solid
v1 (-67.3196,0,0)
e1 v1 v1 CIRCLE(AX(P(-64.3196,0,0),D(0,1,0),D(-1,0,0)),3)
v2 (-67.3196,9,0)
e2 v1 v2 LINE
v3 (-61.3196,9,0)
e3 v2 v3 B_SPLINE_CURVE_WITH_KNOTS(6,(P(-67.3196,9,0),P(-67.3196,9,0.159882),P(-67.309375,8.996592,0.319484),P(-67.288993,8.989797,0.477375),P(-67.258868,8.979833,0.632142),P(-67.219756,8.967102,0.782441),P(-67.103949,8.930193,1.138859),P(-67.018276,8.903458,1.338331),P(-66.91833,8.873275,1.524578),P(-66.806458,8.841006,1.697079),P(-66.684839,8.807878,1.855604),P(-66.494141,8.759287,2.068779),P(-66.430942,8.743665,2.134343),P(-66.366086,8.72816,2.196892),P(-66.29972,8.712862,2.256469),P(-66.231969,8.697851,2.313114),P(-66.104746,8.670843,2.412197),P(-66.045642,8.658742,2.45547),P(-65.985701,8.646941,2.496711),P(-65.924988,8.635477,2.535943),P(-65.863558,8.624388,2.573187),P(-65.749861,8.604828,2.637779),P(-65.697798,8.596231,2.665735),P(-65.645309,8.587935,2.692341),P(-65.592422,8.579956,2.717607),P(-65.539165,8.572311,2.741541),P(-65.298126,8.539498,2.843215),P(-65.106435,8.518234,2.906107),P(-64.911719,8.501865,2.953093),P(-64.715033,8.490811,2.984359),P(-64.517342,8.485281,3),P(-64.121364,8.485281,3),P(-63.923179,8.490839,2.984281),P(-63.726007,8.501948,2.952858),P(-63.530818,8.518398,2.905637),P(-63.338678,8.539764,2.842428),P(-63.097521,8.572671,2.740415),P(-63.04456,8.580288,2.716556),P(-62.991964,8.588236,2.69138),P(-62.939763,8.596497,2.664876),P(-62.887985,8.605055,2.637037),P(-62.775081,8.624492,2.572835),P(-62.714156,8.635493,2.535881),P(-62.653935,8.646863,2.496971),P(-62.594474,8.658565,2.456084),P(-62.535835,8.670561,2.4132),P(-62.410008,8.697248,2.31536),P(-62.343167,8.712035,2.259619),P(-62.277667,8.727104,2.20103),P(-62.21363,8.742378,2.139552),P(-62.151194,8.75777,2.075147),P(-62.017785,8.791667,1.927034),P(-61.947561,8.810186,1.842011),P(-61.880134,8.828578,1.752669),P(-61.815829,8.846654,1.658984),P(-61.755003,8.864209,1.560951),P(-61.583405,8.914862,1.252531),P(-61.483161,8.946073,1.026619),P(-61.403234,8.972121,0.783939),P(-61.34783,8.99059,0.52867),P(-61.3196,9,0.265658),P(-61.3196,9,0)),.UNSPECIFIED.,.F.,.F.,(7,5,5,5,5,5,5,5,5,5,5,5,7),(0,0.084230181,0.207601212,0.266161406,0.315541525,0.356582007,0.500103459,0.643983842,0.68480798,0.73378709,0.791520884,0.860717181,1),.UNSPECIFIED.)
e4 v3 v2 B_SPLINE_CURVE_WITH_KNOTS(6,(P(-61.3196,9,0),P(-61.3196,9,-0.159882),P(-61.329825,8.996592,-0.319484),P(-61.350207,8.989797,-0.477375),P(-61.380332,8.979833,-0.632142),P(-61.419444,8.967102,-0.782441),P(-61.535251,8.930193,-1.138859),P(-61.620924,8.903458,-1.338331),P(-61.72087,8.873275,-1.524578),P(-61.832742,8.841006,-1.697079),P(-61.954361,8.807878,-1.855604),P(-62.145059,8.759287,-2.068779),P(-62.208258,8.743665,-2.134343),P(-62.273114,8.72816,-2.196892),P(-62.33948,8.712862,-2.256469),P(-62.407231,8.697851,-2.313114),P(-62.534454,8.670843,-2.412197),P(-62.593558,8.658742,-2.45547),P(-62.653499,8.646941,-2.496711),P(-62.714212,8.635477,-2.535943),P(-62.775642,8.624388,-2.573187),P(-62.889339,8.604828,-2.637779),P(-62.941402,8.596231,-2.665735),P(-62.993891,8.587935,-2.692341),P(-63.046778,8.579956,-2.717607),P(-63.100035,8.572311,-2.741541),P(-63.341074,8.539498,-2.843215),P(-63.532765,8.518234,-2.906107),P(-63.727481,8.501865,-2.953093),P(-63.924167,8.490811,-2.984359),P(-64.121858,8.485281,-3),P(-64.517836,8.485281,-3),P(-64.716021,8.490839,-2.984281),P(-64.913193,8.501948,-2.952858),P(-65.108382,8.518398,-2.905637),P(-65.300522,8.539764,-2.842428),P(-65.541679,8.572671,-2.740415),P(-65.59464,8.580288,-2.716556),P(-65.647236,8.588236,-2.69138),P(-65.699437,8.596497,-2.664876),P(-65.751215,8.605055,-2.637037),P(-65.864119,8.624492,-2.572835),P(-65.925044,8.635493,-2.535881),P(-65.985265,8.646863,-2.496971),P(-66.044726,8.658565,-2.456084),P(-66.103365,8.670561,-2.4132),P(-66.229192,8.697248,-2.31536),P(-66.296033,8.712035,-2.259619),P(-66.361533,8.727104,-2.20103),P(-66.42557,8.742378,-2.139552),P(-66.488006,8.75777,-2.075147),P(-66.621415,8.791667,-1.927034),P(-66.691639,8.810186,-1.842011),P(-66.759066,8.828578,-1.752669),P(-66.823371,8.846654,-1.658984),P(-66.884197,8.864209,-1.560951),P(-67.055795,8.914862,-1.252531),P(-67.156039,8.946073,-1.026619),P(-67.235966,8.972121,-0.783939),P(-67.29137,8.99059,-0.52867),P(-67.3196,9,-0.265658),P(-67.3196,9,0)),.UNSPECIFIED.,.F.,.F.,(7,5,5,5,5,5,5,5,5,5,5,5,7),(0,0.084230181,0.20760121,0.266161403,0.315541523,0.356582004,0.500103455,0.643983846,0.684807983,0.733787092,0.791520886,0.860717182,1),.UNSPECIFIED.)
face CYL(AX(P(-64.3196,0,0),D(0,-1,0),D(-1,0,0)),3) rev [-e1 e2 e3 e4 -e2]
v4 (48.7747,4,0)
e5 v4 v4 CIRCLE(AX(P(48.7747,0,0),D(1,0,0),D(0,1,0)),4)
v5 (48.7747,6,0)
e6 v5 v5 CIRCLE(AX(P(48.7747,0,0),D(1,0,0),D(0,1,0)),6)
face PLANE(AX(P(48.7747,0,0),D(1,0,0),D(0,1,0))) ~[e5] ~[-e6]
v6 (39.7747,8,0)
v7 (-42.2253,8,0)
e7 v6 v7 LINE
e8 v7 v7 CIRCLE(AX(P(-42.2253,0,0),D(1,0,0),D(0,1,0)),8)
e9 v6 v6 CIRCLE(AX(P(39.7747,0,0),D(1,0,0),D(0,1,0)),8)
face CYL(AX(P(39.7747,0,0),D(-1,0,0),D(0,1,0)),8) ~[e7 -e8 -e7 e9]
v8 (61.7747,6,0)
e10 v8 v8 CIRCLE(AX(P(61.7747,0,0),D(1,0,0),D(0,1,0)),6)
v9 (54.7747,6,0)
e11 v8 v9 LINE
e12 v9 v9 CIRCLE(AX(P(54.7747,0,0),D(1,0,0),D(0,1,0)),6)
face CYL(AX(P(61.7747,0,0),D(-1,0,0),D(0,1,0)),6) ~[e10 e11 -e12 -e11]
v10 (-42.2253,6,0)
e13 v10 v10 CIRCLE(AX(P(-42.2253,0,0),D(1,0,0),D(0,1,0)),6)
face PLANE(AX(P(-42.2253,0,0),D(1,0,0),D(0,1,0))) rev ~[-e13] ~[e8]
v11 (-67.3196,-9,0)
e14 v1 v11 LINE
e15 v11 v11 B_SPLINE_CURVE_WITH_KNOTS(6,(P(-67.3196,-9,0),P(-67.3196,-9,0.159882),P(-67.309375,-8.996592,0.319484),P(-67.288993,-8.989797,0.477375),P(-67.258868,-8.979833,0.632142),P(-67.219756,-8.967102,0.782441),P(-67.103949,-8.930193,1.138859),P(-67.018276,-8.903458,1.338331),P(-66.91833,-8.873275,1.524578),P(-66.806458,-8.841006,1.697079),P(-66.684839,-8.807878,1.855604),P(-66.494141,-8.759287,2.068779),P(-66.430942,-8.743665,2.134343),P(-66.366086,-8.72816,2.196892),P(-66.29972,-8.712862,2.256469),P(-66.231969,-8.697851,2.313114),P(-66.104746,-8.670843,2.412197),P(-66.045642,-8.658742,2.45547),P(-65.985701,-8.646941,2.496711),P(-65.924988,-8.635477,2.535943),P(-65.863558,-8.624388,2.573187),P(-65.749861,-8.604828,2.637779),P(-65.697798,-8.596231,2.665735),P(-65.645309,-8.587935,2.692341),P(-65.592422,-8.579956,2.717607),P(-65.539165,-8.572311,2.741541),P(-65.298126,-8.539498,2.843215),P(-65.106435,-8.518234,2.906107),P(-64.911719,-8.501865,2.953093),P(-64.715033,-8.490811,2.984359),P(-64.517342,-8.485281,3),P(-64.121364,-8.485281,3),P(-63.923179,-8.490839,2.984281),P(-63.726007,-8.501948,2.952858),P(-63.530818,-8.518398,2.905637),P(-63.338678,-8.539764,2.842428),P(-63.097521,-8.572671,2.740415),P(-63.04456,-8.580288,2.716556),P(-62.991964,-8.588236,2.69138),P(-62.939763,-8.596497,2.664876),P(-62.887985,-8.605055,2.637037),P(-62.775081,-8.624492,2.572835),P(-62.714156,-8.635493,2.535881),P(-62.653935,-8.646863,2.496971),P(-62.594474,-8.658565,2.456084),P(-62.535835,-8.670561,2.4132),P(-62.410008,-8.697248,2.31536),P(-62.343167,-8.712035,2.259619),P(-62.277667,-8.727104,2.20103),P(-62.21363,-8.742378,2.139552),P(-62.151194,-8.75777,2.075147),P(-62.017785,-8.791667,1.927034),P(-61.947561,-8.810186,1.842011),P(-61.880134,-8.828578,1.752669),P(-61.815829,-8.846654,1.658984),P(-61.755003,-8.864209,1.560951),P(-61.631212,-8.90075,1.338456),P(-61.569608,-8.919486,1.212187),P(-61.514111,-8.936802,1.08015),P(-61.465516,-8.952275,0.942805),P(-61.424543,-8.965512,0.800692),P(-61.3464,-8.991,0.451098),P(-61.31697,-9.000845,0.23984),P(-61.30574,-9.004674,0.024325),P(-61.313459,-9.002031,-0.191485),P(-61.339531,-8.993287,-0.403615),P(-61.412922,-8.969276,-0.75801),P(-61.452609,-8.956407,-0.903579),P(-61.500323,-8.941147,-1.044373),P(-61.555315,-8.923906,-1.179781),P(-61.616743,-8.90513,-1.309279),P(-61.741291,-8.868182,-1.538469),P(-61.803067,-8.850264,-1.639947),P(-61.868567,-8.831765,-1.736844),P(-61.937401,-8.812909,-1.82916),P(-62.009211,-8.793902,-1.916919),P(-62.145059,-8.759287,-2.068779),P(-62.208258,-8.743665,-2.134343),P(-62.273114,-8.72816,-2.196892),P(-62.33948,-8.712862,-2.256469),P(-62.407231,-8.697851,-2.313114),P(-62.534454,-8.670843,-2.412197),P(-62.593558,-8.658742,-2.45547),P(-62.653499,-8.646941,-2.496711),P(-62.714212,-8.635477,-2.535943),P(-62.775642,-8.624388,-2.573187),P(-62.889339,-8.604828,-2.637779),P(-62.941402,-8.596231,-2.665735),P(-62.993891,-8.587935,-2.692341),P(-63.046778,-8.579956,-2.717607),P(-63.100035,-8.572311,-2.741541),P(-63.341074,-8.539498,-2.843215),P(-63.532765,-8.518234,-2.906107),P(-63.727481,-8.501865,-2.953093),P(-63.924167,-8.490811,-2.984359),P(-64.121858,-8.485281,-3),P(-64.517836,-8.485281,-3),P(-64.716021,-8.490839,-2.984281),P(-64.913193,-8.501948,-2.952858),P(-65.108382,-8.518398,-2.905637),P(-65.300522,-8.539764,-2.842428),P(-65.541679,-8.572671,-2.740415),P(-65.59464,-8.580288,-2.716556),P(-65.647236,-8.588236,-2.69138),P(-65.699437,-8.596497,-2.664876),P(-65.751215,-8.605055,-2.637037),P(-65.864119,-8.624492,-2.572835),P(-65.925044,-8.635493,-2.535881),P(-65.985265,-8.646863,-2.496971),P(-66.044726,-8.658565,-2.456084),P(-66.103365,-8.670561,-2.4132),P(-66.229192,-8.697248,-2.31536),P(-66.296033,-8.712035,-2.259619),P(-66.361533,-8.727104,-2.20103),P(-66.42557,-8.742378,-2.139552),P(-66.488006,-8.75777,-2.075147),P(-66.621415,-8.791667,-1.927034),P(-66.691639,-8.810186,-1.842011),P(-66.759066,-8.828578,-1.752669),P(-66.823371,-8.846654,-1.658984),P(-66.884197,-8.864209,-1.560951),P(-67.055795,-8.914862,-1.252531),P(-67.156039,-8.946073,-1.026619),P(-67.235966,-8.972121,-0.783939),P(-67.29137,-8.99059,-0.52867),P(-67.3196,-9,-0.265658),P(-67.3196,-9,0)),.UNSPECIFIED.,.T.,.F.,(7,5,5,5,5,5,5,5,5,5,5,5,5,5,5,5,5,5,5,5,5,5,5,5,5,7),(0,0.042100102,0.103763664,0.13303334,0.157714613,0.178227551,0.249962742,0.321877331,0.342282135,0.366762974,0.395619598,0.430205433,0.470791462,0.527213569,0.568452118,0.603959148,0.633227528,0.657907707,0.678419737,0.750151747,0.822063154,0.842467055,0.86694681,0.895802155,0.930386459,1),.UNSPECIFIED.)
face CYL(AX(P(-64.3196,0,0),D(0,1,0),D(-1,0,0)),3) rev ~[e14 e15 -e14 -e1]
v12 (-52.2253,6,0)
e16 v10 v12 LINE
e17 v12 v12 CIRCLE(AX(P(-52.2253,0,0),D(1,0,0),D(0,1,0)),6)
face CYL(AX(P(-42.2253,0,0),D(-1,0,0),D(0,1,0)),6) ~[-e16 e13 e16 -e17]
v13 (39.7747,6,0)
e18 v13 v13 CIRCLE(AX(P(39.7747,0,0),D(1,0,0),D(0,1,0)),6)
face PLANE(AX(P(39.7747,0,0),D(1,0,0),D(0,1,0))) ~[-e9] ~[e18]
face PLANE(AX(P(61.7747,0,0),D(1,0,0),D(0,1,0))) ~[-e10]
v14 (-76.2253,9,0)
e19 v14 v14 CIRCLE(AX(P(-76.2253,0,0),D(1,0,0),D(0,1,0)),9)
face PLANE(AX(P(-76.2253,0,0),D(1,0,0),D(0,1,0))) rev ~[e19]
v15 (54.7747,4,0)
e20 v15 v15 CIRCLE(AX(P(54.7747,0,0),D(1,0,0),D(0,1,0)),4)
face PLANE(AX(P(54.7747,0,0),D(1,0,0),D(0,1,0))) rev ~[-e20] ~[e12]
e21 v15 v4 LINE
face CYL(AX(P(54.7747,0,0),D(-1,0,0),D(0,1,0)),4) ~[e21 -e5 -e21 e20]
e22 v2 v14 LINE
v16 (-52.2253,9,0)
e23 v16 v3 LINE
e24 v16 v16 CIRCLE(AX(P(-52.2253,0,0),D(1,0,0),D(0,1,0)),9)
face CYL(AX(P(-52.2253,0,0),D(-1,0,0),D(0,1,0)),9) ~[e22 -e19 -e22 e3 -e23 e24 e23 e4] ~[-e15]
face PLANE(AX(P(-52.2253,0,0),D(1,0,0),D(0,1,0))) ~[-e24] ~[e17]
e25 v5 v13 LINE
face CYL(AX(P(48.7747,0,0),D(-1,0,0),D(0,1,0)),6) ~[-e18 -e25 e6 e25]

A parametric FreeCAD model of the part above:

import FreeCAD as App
import Part
import Sketcher

doc = App.newDocument("Part")
params = doc.addObject("Spreadsheet::Sheet", "Params")
for row, (alias, value) in enumerate([
    ("sketch1_width", "7 mm"),
    ("sketch1_width2", "6 mm"),
    ("sketch1_width3", "9 mm"),
    ("sketch1_width4", "82 mm"),
    ("sketch1_width5", "10 mm"),
    ("revolution_angle", "360 deg"),
    ("sketch2_diameter", "6 mm"),
], start=1):
    params.set(f"A{row}", alias)
    params.set(f"B{row}", "=" + value)
    params.setAlias(f"B{row}", alias)

body = doc.addObject("PartDesign::Body", "Body")

# Sketch on XY plane
sketch1 = body.newObject("Sketcher::SketchObject", "Sketch")
sketch1.AttachmentSupport = (doc.getObject("XY_Plane"), [""])
sketch1.MapMode = "FlatFace"
sketch1.addGeometry([
    Part.LineSegment(App.Vector(-76.2, 9, 0), App.Vector(-76.2, 0, 0)),  # 0
    Part.LineSegment(App.Vector(-76.2, 0, 0), App.Vector(61.8, 0, 0)),  # 1
    Part.LineSegment(App.Vector(61.8, 0, 0), App.Vector(61.8, 6, 0)),  # 2
    Part.LineSegment(App.Vector(61.8, 6, 0), App.Vector(54.8, 6, 0)),  # 3
    Part.LineSegment(App.Vector(54.8, 6, 0), App.Vector(54.8, 4, 0)),  # 4
    Part.LineSegment(App.Vector(54.8, 4, 0), App.Vector(48.8, 4, 0)),  # 5
    Part.LineSegment(App.Vector(48.8, 4, 0), App.Vector(48.8, 6, 0)),  # 6
    Part.LineSegment(App.Vector(48.8, 6, 0), App.Vector(39.8, 6, 0)),  # 7
    Part.LineSegment(App.Vector(39.8, 6, 0), App.Vector(39.8, 8, 0)),  # 8
    Part.LineSegment(App.Vector(39.8, 8, 0), App.Vector(-42.2, 8, 0)),  # 9
    Part.LineSegment(App.Vector(-42.2, 8, 0), App.Vector(-42.2, 6, 0)),  # 10
    Part.LineSegment(App.Vector(-42.2, 6, 0), App.Vector(-52.2, 6, 0)),  # 11
    Part.LineSegment(App.Vector(-52.2, 6, 0), App.Vector(-52.2, 9, 0)),  # 12
    Part.LineSegment(App.Vector(-52.2, 9, 0), App.Vector(-76.2, 9, 0)),  # 13
], False)
sketch1.addConstraint([
    Sketcher.Constraint("Coincident", 0, 2, 1, 1),
    Sketcher.Constraint("Coincident", 1, 2, 2, 1),
    Sketcher.Constraint("Coincident", 2, 2, 3, 1),
    Sketcher.Constraint("Coincident", 3, 2, 4, 1),
    Sketcher.Constraint("Coincident", 4, 2, 5, 1),
    Sketcher.Constraint("Coincident", 5, 2, 6, 1),
    Sketcher.Constraint("Coincident", 6, 2, 7, 1),
    Sketcher.Constraint("Coincident", 7, 2, 8, 1),
    Sketcher.Constraint("Coincident", 8, 2, 9, 1),
    Sketcher.Constraint("Coincident", 9, 2, 10, 1),
    Sketcher.Constraint("Coincident", 10, 2, 11, 1),
    Sketcher.Constraint("Coincident", 11, 2, 12, 1),
    Sketcher.Constraint("Coincident", 12, 2, 13, 1),
    Sketcher.Constraint("Coincident", 13, 2, 0, 1),
    Sketcher.Constraint("Vertical", 0),
    Sketcher.Constraint("Horizontal", 1),
    Sketcher.Constraint("Vertical", 2),
    Sketcher.Constraint("Horizontal", 3),
    Sketcher.Constraint("Vertical", 4),
    Sketcher.Constraint("Horizontal", 5),
    Sketcher.Constraint("Vertical", 6),
    Sketcher.Constraint("Horizontal", 7),
    Sketcher.Constraint("Vertical", 8),
    Sketcher.Constraint("Horizontal", 9),
    Sketcher.Constraint("Vertical", 10),
    Sketcher.Constraint("Horizontal", 11),
    Sketcher.Constraint("Vertical", 12),
    Sketcher.Constraint("Horizontal", 13),
    Sketcher.Constraint("PointOnObject", 0, 2, -1),
    Sketcher.Constraint("Horizontal", 3, 2, 6, 2),
    Sketcher.Constraint("Horizontal", 7, 2, 10, 2),
    Sketcher.Constraint("Equal", 7, 0),
    Sketcher.Constraint("Equal", 5, 2),
    Sketcher.Constraint("Equal", 6, 8),
    Sketcher.Constraint("DistanceX", 3, 2, 3, 1, 7.0),
    Sketcher.Constraint("DistanceX", 5, 2, 5, 1, 6.0),
    Sketcher.Constraint("DistanceX", 7, 2, 7, 1, 9.0),
    Sketcher.Constraint("DistanceX", 9, 2, 9, 1, 82.0),
    Sketcher.Constraint("DistanceX", 11, 2, 11, 1, 10.0),
    Sketcher.Constraint("DistanceX", 13, 2, 13, 1, 24.0),
    Sketcher.Constraint("DistanceY", -1, 1, 4, 2, 4.0),
    Sketcher.Constraint("DistanceX", 0, 2, -1, 1, 76.2253),
])
sketch1.setExpression("Constraints[34]", "Params.sketch1_width")
sketch1.setExpression("Constraints[35]", "Params.sketch1_width2")
sketch1.setExpression("Constraints[36]", "Params.sketch1_width3")
sketch1.setExpression("Constraints[37]", "Params.sketch1_width4")
sketch1.setExpression("Constraints[38]", "Params.sketch1_width5")
revolution = body.newObject("PartDesign::Revolution", "Revolution")
revolution.Profile = sketch1
revolution.ReferenceAxis = (sketch1, ["H_Axis"])
revolution.setExpression("Angle", "Params.revolution_angle")

# Sketch on XZ plane
sketch2 = body.newObject("Sketcher::SketchObject", "Sketch001")
sketch2.AttachmentSupport = (doc.getObject("XZ_Plane"), [""])
sketch2.MapMode = "FlatFace"
sketch2.addGeometry(Part.Circle(App.Vector(-64.3, 0, 0), App.Vector(0, 0, 1), 3), False)
sketch2.addConstraint([
    Sketcher.Constraint("PointOnObject", 0, 3, -1),
    Sketcher.Constraint("Diameter", 0, 6.0),
    Sketcher.Constraint("DistanceX", 0, 3, -1, 1, 64.3196),
])
sketch2.setExpression("Constraints[1]", "Params.sketch2_diameter")
pocket1 = body.newObject("PartDesign::Pocket", "Pocket")
pocket1.Profile = sketch2
pocket1.Type = "ThroughAll"
pocket1.Midplane = True

doc.recompute()
